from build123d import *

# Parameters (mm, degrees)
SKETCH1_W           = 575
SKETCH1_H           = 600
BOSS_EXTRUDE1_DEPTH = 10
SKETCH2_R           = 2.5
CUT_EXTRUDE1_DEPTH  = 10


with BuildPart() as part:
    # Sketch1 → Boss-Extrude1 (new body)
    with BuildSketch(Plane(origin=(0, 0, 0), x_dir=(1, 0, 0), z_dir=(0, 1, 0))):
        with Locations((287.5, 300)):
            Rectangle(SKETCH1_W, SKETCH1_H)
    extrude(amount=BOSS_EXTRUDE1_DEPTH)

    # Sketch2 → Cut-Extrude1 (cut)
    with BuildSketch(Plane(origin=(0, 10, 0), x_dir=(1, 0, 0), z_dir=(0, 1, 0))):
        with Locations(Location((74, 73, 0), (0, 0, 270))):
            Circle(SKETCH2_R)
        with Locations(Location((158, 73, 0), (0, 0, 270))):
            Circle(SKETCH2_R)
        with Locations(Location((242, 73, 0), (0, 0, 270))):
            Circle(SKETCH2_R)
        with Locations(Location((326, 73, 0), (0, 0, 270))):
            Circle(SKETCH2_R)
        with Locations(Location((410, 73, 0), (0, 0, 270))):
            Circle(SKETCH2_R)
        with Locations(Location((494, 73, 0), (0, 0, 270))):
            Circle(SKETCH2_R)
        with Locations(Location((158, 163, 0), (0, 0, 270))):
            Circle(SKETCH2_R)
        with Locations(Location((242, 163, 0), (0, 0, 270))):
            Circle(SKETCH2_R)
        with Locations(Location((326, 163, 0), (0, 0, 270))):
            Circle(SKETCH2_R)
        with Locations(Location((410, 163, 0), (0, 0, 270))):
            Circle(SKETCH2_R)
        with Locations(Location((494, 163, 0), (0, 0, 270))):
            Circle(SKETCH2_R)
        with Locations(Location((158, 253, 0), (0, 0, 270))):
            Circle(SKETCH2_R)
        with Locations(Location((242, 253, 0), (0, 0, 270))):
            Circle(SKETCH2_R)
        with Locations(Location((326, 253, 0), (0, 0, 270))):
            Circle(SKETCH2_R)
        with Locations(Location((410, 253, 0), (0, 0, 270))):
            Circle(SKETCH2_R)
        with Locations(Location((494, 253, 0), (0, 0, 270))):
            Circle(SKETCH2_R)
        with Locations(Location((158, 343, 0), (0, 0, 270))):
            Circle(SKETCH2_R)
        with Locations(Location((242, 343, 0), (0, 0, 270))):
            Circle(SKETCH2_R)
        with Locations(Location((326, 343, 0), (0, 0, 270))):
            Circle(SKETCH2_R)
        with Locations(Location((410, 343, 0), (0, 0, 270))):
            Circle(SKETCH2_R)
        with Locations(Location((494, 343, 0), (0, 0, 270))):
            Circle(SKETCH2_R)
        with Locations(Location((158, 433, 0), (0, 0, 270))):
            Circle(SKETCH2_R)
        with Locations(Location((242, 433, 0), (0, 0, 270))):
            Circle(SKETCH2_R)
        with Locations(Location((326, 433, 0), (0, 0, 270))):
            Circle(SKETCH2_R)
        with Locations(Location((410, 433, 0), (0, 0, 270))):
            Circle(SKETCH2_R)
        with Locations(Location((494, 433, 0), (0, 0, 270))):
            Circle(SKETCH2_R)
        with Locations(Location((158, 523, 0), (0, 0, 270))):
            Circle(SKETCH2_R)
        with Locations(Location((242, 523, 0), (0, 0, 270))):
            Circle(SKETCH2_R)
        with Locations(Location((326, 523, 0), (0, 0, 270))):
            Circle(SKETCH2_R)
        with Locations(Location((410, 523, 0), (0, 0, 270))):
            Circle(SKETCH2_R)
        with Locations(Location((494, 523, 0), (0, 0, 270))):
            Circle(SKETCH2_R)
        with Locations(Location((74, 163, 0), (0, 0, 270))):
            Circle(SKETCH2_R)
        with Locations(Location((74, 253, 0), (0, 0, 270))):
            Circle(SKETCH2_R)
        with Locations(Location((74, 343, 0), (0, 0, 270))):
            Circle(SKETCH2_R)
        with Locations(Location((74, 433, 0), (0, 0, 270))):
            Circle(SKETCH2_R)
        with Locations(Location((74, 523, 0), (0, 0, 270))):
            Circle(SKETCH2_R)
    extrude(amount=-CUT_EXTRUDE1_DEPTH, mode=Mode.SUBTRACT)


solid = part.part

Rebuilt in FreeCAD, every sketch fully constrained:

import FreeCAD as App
import Part
import Sketcher
Q = App.Units.Quantity

doc = App.newDocument("Part")
body = doc.addObject("PartDesign::Body", "Body")

sketch1 = doc.addObject("Sketcher::SketchObject", "Sketch")
body.addObject(sketch1)
sketch1.AttachmentSupport = (doc.XZ_Plane, [""])
sketch1.MapMode = "FlatFace"
sketch1.addGeometry(Part.LineSegment(App.Vector(0, -600, 0), App.Vector(0, 0, 0)), False)
sketch1.addGeometry(Part.LineSegment(App.Vector(0, 0, 0), App.Vector(575, 0, 0)), False)
sketch1.addGeometry(Part.LineSegment(App.Vector(575, 0, 0), App.Vector(575, -600, 0)), False)
sketch1.addGeometry(Part.LineSegment(App.Vector(575, -600, 0), App.Vector(0, -600, 0)), False)
sketch1.addConstraint(Sketcher.Constraint("Coincident", 0, 2, 1, 1))
sketch1.addConstraint(Sketcher.Constraint("Coincident", 1, 2, 2, 1))
sketch1.addConstraint(Sketcher.Constraint("Coincident", 2, 2, 3, 1))
sketch1.addConstraint(Sketcher.Constraint("Coincident", 3, 2, 0, 1))
sketch1.addConstraint(Sketcher.Constraint("Vertical", 0))
sketch1.addConstraint(Sketcher.Constraint("Horizontal", 1))
sketch1.addConstraint(Sketcher.Constraint("Vertical", 2))
sketch1.addConstraint(Sketcher.Constraint("Horizontal", 3))
sketch1.addConstraint(Sketcher.Constraint("Coincident", 0, 2, -1, 1))
sketch1.addConstraint(Sketcher.Constraint("DistanceX", 1, 1, 1, 2, Q("575 mm")))
sketch1.addConstraint(Sketcher.Constraint("DistanceY", 0, 1, 0, 2, Q("600 mm")))
pad1 = doc.addObject("PartDesign::Pad", "Pad")
body.addObject(pad1)
pad1.Profile = sketch1
pad1.Length = 10
pad1.Reversed = True

sketch2 = doc.addObject("Sketcher::SketchObject", "Sketch001")
body.addObject(sketch2)
sketch2.AttachmentSupport = (doc.XZ_Plane, [""])
sketch2.MapMode = "FlatFace"
sketch2.AttachmentOffset = App.Placement(App.Vector(0, 0, -10), App.Rotation())
sketch2.addGeometry(Part.Circle(App.Vector(74, -73, 0), App.Vector(0, 0, 1), 2.5), False)
sketch2.addGeometry(Part.Circle(App.Vector(158, -73, 0), App.Vector(0, 0, 1), 2.5), False)
sketch2.addGeometry(Part.Circle(App.Vector(242, -73, 0), App.Vector(0, 0, 1), 2.5), False)
sketch2.addGeometry(Part.Circle(App.Vector(326, -73, 0), App.Vector(0, 0, 1), 2.5), False)
sketch2.addGeometry(Part.Circle(App.Vector(410, -73, 0), App.Vector(0, 0, 1), 2.5), False)
sketch2.addGeometry(Part.Circle(App.Vector(494, -73, 0), App.Vector(0, 0, 1), 2.5), False)
sketch2.addGeometry(Part.Circle(App.Vector(158, -163, 0), App.Vector(0, 0, 1), 2.5), False)
sketch2.addGeometry(Part.Circle(App.Vector(242, -163, 0), App.Vector(0, 0, 1), 2.5), False)
sketch2.addGeometry(Part.Circle(App.Vector(326, -163, 0), App.Vector(0, 0, 1), 2.5), False)
sketch2.addGeometry(Part.Circle(App.Vector(410, -163, 0), App.Vector(0, 0, 1), 2.5), False)
sketch2.addGeometry(Part.Circle(App.Vector(494, -163, 0), App.Vector(0, 0, 1), 2.5), False)
sketch2.addGeometry(Part.Circle(App.Vector(158, -253, 0), App.Vector(0, 0, 1), 2.5), False)
sketch2.addGeometry(Part.Circle(App.Vector(242, -253, 0), App.Vector(0, 0, 1), 2.5), False)
sketch2.addGeometry(Part.Circle(App.Vector(326, -253, 0), App.Vector(0, 0, 1), 2.5), False)
sketch2.addGeometry(Part.Circle(App.Vector(410, -253, 0), App.Vector(0, 0, 1), 2.5), False)
sketch2.addGeometry(Part.Circle(App.Vector(494, -253, 0), App.Vector(0, 0, 1), 2.5), False)
sketch2.addGeometry(Part.Circle(App.Vector(158, -343, 0), App.Vector(0, 0, 1), 2.5), False)
sketch2.addGeometry(Part.Circle(App.Vector(242, -343, 0), App.Vector(0, 0, 1), 2.5), False)
sketch2.addGeometry(Part.Circle(App.Vector(326, -343, 0), App.Vector(0, 0, 1), 2.5), False)
sketch2.addGeometry(Part.Circle(App.Vector(410, -343, 0), App.Vector(0, 0, 1), 2.5), False)
sketch2.addGeometry(Part.Circle(App.Vector(494, -343, 0), App.Vector(0, 0, 1), 2.5), False)
sketch2.addGeometry(Part.Circle(App.Vector(158, -433, 0), App.Vector(0, 0, 1), 2.5), False)
sketch2.addGeometry(Part.Circle(App.Vector(242, -433, 0), App.Vector(0, 0, 1), 2.5), False)
sketch2.addGeometry(Part.Circle(App.Vector(326, -433, 0), App.Vector(0, 0, 1), 2.5), False)
sketch2.addGeometry(Part.Circle(App.Vector(410, -433, 0), App.Vector(0, 0, 1), 2.5), False)
sketch2.addGeometry(Part.Circle(App.Vector(494, -433, 0), App.Vector(0, 0, 1), 2.5), False)
sketch2.addGeometry(Part.Circle(App.Vector(158, -523, 0), App.Vector(0, 0, 1), 2.5), False)
sketch2.addGeometry(Part.Circle(App.Vector(242, -523, 0), App.Vector(0, 0, 1), 2.5), False)
sketch2.addGeometry(Part.Circle(App.Vector(326, -523, 0), App.Vector(0, 0, 1), 2.5), False)
sketch2.addGeometry(Part.Circle(App.Vector(410, -523, 0), App.Vector(0, 0, 1), 2.5), False)
sketch2.addGeometry(Part.Circle(App.Vector(494, -523, 0), App.Vector(0, 0, 1), 2.5), False)
sketch2.addGeometry(Part.Circle(App.Vector(74, -163, 0), App.Vector(0, 0, 1), 2.5), False)
sketch2.addGeometry(Part.Circle(App.Vector(74, -253, 0), App.Vector(0, 0, 1), 2.5), False)
sketch2.addGeometry(Part.Circle(App.Vector(74, -343, 0), App.Vector(0, 0, 1), 2.5), False)
sketch2.addGeometry(Part.Circle(App.Vector(74, -433, 0), App.Vector(0, 0, 1), 2.5), False)
sketch2.addGeometry(Part.Circle(App.Vector(74, -523, 0), App.Vector(0, 0, 1), 2.5), False)
sketch2.addConstraint(Sketcher.Constraint("Equal", 0, 1))
sketch2.addConstraint(Sketcher.Constraint("Equal", 1, 2))
sketch2.addConstraint(Sketcher.Constraint("Equal", 2, 3))
sketch2.addConstraint(Sketcher.Constraint("Equal", 3, 4))
sketch2.addConstraint(Sketcher.Constraint("Equal", 4, 5))
sketch2.addConstraint(Sketcher.Constraint("Equal", 5, 6))
sketch2.addConstraint(Sketcher.Constraint("Equal", 6, 7))
sketch2.addConstraint(Sketcher.Constraint("Equal", 7, 8))
sketch2.addConstraint(Sketcher.Constraint("Equal", 8, 9))
sketch2.addConstraint(Sketcher.Constraint("Equal", 9, 10))
sketch2.addConstraint(Sketcher.Constraint("Equal", 10, 11))
sketch2.addConstraint(Sketcher.Constraint("Equal", 11, 12))
sketch2.addConstraint(Sketcher.Constraint("Equal", 12, 13))
sketch2.addConstraint(Sketcher.Constraint("Equal", 13, 14))
sketch2.addConstraint(Sketcher.Constraint("Equal", 14, 15))
sketch2.addConstraint(Sketcher.Constraint("Equal", 15, 16))
sketch2.addConstraint(Sketcher.Constraint("Equal", 16, 17))
sketch2.addConstraint(Sketcher.Constraint("Equal", 17, 18))
sketch2.addConstraint(Sketcher.Constraint("Equal", 18, 19))
sketch2.addConstraint(Sketcher.Constraint("Equal", 19, 20))
sketch2.addConstraint(Sketcher.Constraint("Equal", 20, 21))
sketch2.addConstraint(Sketcher.Constraint("Equal", 21, 22))
sketch2.addConstraint(Sketcher.Constraint("Equal", 22, 23))
sketch2.addConstraint(Sketcher.Constraint("Equal", 23, 24))
sketch2.addConstraint(Sketcher.Constraint("Equal", 24, 25))
sketch2.addConstraint(Sketcher.Constraint("Equal", 25, 26))
sketch2.addConstraint(Sketcher.Constraint("Equal", 26, 27))
sketch2.addConstraint(Sketcher.Constraint("Equal", 27, 28))
sketch2.addConstraint(Sketcher.Constraint("Equal", 28, 29))
sketch2.addConstraint(Sketcher.Constraint("Equal", 29, 30))
sketch2.addConstraint(Sketcher.Constraint("Equal", 30, 31))
sketch2.addConstraint(Sketcher.Constraint("Equal", 31, 32))
sketch2.addConstraint(Sketcher.Constraint("Equal", 32, 33))
sketch2.addConstraint(Sketcher.Constraint("Equal", 33, 34))
sketch2.addConstraint(Sketcher.Constraint("Equal", 34, 35))
sketch2.addConstraint(Sketcher.Constraint("Horizontal", 0, 3, 1, 3))
sketch2.addConstraint(Sketcher.Constraint("Horizontal", 1, 3, 2, 3))
sketch2.addConstraint(Sketcher.Constraint("Horizontal", 2, 3, 3, 3))
sketch2.addConstraint(Sketcher.Constraint("Horizontal", 3, 3, 4, 3))
sketch2.addConstraint(Sketcher.Constraint("Horizontal", 4, 3, 5, 3))
sketch2.addConstraint(Sketcher.Constraint("Horizontal", 6, 3, 7, 3))
sketch2.addConstraint(Sketcher.Constraint("Horizontal", 7, 3, 8, 3))
sketch2.addConstraint(Sketcher.Constraint("Horizontal", 8, 3, 9, 3))
sketch2.addConstraint(Sketcher.Constraint("Horizontal", 9, 3, 10, 3))
sketch2.addConstraint(Sketcher.Constraint("Horizontal", 11, 3, 12, 3))
sketch2.addConstraint(Sketcher.Constraint("Horizontal", 12, 3, 13, 3))
sketch2.addConstraint(Sketcher.Constraint("Horizontal", 13, 3, 14, 3))
sketch2.addConstraint(Sketcher.Constraint("Horizontal", 14, 3, 15, 3))
sketch2.addConstraint(Sketcher.Constraint("Horizontal", 16, 3, 17, 3))
sketch2.addConstraint(Sketcher.Constraint("Horizontal", 17, 3, 18, 3))
sketch2.addConstraint(Sketcher.Constraint("Horizontal", 18, 3, 19, 3))
sketch2.addConstraint(Sketcher.Constraint("Horizontal", 19, 3, 20, 3))
sketch2.addConstraint(Sketcher.Constraint("Horizontal", 21, 3, 22, 3))
sketch2.addConstraint(Sketcher.Constraint("Horizontal", 22, 3, 23, 3))
sketch2.addConstraint(Sketcher.Constraint("Horizontal", 23, 3, 24, 3))
sketch2.addConstraint(Sketcher.Constraint("Horizontal", 24, 3, 25, 3))
sketch2.addConstraint(Sketcher.Constraint("Horizontal", 26, 3, 27, 3))
sketch2.addConstraint(Sketcher.Constraint("Horizontal", 27, 3, 28, 3))
sketch2.addConstraint(Sketcher.Constraint("Horizontal", 28, 3, 29, 3))
sketch2.addConstraint(Sketcher.Constraint("Horizontal", 29, 3, 30, 3))
sketch2.addConstraint(Sketcher.Constraint("Horizontal", 10, 3, 31, 3))
sketch2.addConstraint(Sketcher.Constraint("Horizontal", 15, 3, 32, 3))
sketch2.addConstraint(Sketcher.Constraint("Horizontal", 20, 3, 33, 3))
sketch2.addConstraint(Sketcher.Constraint("Horizontal", 25, 3, 34, 3))
sketch2.addConstraint(Sketcher.Constraint("Horizontal", 30, 3, 35, 3))
sketch2.addConstraint(Sketcher.Constraint("Vertical", 1, 3, 6, 3))
sketch2.addConstraint(Sketcher.Constraint("Vertical", 2, 3, 7, 3))
sketch2.addConstraint(Sketcher.Constraint("Vertical", 3, 3, 8, 3))
sketch2.addConstraint(Sketcher.Constraint("Vertical", 4, 3, 9, 3))
sketch2.addConstraint(Sketcher.Constraint("Vertical", 5, 3, 10, 3))
sketch2.addConstraint(Sketcher.Constraint("Vertical", 6, 3, 11, 3))
sketch2.addConstraint(Sketcher.Constraint("Vertical", 7, 3, 12, 3))
sketch2.addConstraint(Sketcher.Constraint("Vertical", 8, 3, 13, 3))
sketch2.addConstraint(Sketcher.Constraint("Vertical", 9, 3, 14, 3))
sketch2.addConstraint(Sketcher.Constraint("Vertical", 10, 3, 15, 3))
sketch2.addConstraint(Sketcher.Constraint("Vertical", 11, 3, 16, 3))
sketch2.addConstraint(Sketcher.Constraint("Vertical", 12, 3, 17, 3))
sketch2.addConstraint(Sketcher.Constraint("Vertical", 13, 3, 18, 3))
sketch2.addConstraint(Sketcher.Constraint("Vertical", 14, 3, 19, 3))
sketch2.addConstraint(Sketcher.Constraint("Vertical", 15, 3, 20, 3))
sketch2.addConstraint(Sketcher.Constraint("Vertical", 16, 3, 21, 3))
sketch2.addConstraint(Sketcher.Constraint("Vertical", 17, 3, 22, 3))
sketch2.addConstraint(Sketcher.Constraint("Vertical", 18, 3, 23, 3))
sketch2.addConstraint(Sketcher.Constraint("Vertical", 19, 3, 24, 3))
sketch2.addConstraint(Sketcher.Constraint("Vertical", 20, 3, 25, 3))
sketch2.addConstraint(Sketcher.Constraint("Vertical", 21, 3, 26, 3))
sketch2.addConstraint(Sketcher.Constraint("Vertical", 22, 3, 27, 3))
sketch2.addConstraint(Sketcher.Constraint("Vertical", 23, 3, 28, 3))
sketch2.addConstraint(Sketcher.Constraint("Vertical", 24, 3, 29, 3))
sketch2.addConstraint(Sketcher.Constraint("Vertical", 25, 3, 30, 3))
sketch2.addConstraint(Sketcher.Constraint("Vertical", 0, 3, 31, 3))
sketch2.addConstraint(Sketcher.Constraint("Vertical", 31, 3, 32, 3))
sketch2.addConstraint(Sketcher.Constraint("Vertical", 32, 3, 33, 3))
sketch2.addConstraint(Sketcher.Constraint("Vertical", 33, 3, 34, 3))
sketch2.addConstraint(Sketcher.Constraint("Vertical", 34, 3, 35, 3))
sketch2.addConstraint(Sketcher.Constraint("Diameter", 0, Q("5 mm")))
sketch2.addConstraint(Sketcher.Constraint("DistanceX", -1, 1, 0, 3, Q("74 mm")))
sketch2.addConstraint(Sketcher.Constraint("DistanceY", 0, 3, -1, 1, Q("73 mm")))
sketch2.addConstraint(Sketcher.Constraint("DistanceX", -1, 1, 1, 3, Q("158 mm")))
sketch2.addConstraint(Sketcher.Constraint("DistanceX", -1, 1, 2, 3, Q("242 mm")))
sketch2.addConstraint(Sketcher.Constraint("DistanceX", -1, 1, 3, 3, Q("326 mm")))
sketch2.addConstraint(Sketcher.Constraint("DistanceX", -1, 1, 4, 3, Q("410 mm")))
sketch2.addConstraint(Sketcher.Constraint("DistanceX", -1, 1, 5, 3, Q("494 mm")))
sketch2.addConstraint(Sketcher.Constraint("DistanceY", 6, 3, -1, 1, Q("163 mm")))
sketch2.addConstraint(Sketcher.Constraint("DistanceY", 11, 3, -1, 1, Q("253 mm")))
sketch2.addConstraint(Sketcher.Constraint("DistanceY", 16, 3, -1, 1, Q("343 mm")))
sketch2.addConstraint(Sketcher.Constraint("DistanceY", 21, 3, -1, 1, Q("433 mm")))
sketch2.addConstraint(Sketcher.Constraint("DistanceY", 26, 3, -1, 1, Q("523 mm")))
pocket1 = doc.addObject("PartDesign::Pocket", "Pocket")
body.addObject(pocket1)
pocket1.Profile = sketch2
pocket1.Length = 10
pocket1.Reversed = True

doc.recompute()
